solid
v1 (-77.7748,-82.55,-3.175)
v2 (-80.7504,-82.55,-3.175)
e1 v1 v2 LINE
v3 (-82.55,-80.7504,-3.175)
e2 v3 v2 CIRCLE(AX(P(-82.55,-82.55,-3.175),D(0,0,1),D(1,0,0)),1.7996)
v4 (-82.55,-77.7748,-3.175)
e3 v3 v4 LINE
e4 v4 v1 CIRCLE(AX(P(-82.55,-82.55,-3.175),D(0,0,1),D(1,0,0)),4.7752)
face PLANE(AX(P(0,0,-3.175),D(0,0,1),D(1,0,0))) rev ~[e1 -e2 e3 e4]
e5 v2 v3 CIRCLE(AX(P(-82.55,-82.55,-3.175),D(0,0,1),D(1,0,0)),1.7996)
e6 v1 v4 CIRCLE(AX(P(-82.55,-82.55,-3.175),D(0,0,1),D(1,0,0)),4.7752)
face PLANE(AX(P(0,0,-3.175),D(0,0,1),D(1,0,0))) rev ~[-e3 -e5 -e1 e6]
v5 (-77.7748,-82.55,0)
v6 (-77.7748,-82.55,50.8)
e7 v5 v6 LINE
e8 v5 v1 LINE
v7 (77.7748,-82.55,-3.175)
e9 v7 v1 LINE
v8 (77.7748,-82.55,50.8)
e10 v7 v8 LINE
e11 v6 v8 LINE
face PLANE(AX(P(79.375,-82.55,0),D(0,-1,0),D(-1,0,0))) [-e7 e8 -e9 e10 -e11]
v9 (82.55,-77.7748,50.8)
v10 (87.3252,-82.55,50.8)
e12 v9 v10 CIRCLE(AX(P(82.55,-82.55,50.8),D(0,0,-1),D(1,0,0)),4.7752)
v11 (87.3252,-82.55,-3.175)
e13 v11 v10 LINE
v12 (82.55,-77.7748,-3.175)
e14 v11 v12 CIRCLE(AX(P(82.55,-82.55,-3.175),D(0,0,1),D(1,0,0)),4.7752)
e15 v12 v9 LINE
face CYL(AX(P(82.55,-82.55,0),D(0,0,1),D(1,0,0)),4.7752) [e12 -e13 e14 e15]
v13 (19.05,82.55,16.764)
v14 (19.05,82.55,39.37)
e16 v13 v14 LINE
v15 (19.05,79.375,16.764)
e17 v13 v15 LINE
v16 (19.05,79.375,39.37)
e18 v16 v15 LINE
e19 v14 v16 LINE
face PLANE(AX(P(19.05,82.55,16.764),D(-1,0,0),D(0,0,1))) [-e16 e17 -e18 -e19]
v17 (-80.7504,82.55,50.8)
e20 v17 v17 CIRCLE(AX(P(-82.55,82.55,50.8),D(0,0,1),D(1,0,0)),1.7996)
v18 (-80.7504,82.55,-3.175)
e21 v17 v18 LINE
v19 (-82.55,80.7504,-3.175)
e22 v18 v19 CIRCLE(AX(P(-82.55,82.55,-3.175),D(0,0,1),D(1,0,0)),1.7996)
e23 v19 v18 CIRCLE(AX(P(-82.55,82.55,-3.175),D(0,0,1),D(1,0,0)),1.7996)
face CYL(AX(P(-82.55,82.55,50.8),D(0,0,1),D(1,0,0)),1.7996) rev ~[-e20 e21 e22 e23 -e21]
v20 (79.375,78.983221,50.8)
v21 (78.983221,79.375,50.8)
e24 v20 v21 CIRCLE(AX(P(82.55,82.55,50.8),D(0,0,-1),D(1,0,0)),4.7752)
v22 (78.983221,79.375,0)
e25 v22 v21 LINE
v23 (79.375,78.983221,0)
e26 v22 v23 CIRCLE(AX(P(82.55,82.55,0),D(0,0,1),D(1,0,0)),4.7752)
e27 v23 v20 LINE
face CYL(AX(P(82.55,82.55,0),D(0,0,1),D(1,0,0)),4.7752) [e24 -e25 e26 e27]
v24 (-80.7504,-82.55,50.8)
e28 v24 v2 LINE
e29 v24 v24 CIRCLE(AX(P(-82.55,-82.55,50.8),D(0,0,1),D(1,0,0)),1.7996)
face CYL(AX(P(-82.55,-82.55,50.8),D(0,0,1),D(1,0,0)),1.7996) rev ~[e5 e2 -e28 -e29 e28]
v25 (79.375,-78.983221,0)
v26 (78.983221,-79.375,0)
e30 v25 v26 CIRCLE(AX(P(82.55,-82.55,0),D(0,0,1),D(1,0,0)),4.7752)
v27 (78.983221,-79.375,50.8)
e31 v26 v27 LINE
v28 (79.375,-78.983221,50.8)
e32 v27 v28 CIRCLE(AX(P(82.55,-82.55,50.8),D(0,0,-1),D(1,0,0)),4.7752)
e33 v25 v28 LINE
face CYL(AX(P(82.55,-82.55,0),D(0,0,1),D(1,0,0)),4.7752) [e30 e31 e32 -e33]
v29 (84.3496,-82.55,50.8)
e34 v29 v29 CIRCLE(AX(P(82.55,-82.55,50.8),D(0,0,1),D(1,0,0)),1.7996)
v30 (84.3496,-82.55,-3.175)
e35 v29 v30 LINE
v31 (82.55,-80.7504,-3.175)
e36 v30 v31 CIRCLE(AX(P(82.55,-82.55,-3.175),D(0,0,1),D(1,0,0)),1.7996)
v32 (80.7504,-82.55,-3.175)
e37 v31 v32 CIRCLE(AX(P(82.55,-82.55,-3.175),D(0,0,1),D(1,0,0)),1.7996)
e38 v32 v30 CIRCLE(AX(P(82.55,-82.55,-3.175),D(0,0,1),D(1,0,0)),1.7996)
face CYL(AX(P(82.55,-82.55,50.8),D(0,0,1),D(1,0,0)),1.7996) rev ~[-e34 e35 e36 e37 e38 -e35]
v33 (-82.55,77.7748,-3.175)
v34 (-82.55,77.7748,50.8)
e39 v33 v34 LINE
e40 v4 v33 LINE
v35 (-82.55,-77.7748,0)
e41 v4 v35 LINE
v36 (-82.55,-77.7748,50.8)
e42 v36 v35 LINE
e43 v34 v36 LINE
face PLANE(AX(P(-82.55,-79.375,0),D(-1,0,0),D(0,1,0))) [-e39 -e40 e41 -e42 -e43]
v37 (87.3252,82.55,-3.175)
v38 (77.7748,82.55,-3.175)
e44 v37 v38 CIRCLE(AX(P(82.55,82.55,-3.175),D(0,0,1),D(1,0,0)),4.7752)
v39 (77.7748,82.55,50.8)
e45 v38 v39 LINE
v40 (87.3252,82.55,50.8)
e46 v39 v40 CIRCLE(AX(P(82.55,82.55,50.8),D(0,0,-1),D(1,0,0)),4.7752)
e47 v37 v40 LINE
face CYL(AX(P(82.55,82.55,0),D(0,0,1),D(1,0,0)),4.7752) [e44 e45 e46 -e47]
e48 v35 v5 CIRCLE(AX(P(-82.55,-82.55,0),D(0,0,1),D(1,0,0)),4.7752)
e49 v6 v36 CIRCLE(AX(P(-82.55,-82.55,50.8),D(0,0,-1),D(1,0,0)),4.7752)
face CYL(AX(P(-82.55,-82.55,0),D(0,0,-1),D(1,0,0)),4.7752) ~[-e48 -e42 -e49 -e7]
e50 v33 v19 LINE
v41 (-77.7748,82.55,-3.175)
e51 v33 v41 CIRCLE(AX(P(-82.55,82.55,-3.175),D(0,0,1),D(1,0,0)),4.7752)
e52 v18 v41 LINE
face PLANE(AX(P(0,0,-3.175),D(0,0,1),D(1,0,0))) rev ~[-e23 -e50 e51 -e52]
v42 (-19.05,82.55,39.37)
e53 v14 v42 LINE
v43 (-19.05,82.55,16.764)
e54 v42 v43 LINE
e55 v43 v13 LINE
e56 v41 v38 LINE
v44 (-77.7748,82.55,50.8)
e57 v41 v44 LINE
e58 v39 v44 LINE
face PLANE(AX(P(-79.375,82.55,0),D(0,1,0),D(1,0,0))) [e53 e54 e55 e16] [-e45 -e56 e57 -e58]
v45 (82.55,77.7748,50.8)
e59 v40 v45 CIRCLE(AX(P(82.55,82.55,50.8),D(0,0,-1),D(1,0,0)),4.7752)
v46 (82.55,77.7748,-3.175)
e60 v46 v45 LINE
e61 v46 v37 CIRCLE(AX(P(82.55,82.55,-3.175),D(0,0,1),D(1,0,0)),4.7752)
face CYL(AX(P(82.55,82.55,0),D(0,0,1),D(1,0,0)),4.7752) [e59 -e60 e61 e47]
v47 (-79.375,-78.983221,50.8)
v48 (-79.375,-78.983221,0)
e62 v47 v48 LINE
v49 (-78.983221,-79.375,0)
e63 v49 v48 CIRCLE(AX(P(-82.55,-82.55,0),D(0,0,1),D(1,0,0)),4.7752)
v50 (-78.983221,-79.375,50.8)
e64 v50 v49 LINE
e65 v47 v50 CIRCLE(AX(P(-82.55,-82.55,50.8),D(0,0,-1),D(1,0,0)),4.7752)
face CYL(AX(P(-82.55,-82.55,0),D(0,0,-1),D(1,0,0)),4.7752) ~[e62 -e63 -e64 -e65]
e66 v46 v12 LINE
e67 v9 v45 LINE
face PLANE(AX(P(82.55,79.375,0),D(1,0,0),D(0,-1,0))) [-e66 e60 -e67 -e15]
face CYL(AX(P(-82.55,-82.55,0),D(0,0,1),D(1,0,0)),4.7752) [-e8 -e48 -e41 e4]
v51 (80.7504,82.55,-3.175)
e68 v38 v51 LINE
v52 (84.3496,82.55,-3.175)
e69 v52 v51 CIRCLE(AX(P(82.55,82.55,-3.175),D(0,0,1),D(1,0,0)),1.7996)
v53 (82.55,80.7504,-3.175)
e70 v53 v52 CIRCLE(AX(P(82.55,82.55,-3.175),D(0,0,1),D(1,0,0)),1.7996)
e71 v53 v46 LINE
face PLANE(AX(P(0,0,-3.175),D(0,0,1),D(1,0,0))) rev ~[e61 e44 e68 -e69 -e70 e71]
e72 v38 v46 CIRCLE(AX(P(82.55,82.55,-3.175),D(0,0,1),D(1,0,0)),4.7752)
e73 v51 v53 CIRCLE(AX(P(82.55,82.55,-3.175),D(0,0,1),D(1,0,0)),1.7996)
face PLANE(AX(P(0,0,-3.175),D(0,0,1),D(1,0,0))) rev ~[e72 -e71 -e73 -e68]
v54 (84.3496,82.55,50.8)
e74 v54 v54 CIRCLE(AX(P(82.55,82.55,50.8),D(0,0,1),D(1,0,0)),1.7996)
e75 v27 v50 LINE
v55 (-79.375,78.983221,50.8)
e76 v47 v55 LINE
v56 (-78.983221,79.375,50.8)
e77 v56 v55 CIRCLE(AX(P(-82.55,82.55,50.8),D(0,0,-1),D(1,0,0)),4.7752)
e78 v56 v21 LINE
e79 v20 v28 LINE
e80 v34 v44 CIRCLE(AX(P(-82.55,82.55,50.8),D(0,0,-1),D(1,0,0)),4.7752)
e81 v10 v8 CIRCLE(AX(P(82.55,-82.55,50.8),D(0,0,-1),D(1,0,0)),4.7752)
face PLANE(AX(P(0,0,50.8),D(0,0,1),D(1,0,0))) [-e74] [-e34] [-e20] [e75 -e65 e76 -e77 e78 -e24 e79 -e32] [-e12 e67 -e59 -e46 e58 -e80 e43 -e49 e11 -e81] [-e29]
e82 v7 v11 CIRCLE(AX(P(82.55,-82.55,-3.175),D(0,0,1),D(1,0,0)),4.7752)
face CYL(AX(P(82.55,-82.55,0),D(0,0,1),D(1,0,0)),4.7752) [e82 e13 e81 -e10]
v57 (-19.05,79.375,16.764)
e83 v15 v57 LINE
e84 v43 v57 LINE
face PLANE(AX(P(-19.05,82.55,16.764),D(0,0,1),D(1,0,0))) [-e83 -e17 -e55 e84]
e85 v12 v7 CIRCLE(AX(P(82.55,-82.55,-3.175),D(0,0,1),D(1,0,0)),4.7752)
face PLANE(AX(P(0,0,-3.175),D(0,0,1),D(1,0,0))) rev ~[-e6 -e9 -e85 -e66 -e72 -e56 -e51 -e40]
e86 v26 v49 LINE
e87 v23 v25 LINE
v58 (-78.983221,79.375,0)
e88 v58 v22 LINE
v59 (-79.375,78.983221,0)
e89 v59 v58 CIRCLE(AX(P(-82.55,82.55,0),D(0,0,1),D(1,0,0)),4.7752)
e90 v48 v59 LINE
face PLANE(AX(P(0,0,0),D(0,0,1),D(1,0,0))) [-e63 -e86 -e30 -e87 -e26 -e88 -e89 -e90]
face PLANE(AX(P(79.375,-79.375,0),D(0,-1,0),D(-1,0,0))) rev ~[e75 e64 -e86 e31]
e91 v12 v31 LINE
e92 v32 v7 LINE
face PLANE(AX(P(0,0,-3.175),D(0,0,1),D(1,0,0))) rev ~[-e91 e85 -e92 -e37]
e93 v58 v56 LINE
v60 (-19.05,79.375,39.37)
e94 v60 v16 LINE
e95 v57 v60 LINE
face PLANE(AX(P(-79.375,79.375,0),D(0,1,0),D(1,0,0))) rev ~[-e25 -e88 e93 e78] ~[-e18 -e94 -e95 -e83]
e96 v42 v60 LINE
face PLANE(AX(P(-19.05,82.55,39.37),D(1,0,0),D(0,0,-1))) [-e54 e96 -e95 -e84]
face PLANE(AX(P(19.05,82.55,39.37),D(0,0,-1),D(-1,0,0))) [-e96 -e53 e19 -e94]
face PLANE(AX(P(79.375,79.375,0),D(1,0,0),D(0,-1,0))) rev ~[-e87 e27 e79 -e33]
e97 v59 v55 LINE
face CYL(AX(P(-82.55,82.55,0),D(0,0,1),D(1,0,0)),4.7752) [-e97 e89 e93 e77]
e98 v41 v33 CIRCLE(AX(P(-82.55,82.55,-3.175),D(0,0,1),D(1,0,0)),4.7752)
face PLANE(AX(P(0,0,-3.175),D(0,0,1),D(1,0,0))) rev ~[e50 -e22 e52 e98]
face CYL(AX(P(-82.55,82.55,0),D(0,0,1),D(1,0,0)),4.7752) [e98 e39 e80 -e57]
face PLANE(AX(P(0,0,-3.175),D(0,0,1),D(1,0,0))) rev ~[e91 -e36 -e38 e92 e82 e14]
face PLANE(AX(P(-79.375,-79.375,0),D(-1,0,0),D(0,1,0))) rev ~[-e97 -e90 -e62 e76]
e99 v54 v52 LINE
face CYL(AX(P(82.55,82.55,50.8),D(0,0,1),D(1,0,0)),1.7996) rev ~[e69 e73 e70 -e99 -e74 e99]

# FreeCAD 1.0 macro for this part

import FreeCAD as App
import Part
import Sketcher

V = App.Vector
Q = App.Units.Quantity


def faces_at(feature, points):
    """Names of the faces that lie closest to the given points."""
    faces = feature.Shape.Faces
    near = lambda p: min(range(len(faces)), key=lambda i: faces[i].distToShape(Part.Vertex(*p))[0])
    return sorted({f"Face{near(p) + 1}" for p in points})


def add_polygon(sketch, points):
    """Adds a closed chain of lines whose ends are joined by coincident constraints."""
    first, n = sketch.GeometryCount, len(points)
    for a, b in zip(points, points[1:] + points[:1]):
        sketch.addGeometry(Part.LineSegment(App.Vector(*a, 0), App.Vector(*b, 0)), False)
    for i in range(n):
        sketch.addConstraint(Sketcher.Constraint("Coincident", first + i, 2, first + (i + 1) % n, 1))

doc = App.newDocument("Part")
params = doc.addObject("Spreadsheet::Sheet", "Params")
for row, (alias, value) in enumerate([
    ("sketch1_width", "6.25 in"),
    ("pad1_length", "2 in"),
    ("thickness_wall", "0.125 in"),
    ("sketch2_diameter", "0.376 in"),
    ("pad2_length", "2 in"),
    ("pad2_length2", "0.125 in"),
    ("pocket1_length", "4.25 in"),
    ("sketch4_width", "1.5 in"),
    ("sketch4_height", "0.89 in"),
], start=1):
    params.set(f"A{row}", alias)
    params.set(f"B{row}", "=" + value)
    params.setAlias(f"B{row}", alias)

body = doc.addObject("PartDesign::Body", "Body")

sketch1 = body.newObject("Sketcher::SketchObject", "Sketch")
sketch1.AttachmentSupport = (doc.getObject("XY_Plane"), [""])
sketch1.MapMode = "FlatFace"
add_polygon(sketch1, [(79, 79), (-79, 79), (-79, -79), (79, -79)])
sketch1.addConstraint([
    Sketcher.Constraint("Horizontal", 0),
    Sketcher.Constraint("Vertical", 1),
    Sketcher.Constraint("Horizontal", 2),
    Sketcher.Constraint("Vertical", 3),
    Sketcher.Constraint("Symmetric", 0, 2, 2, 2, -1, 1),
    Sketcher.Constraint("Equal", 2, 1),
    Sketcher.Constraint("DistanceX", 0, 2, 0, 1, Q("6.25 in")),
])
sketch1.setExpression("Constraints[10]", "Params.sketch1_width")
pad1 = body.newObject("PartDesign::Pad", "Pad")
pad1.Profile = sketch1
pad1.setExpression("Length", "Params.pad1_length")
doc.recompute()

thickness = body.newObject("PartDesign::Thickness", "Thickness")
thickness.Base = (pad1, faces_at(pad1, [(-26.458, 26.458, 50.8)]))
thickness.setExpression("Value", "Params.thickness_wall")
thickness.Reversed = False
thickness.Join = "Intersection"

sketch2 = body.newObject("Sketcher::SketchObject", "Sketch001")
sketch2.AttachmentSupport = (doc.getObject("XY_Plane"), [""])
sketch2.MapMode = "FlatFace"
sketch2.addGeometry([
    Part.Circle(V(82.5, 82.5, 0), V(0, 0, 1), 4.8),
    Part.Circle(V(82.5, -82.5, 0), V(0, 0, 1), 4.8),
    Part.Circle(V(-82.5, -82.5, 0), V(0, 0, 1), 4.8),
    Part.Circle(V(-82.5, 82.5, 0), V(0, 0, 1), 4.8),
], False)
sketch2.addConstraint([
    Sketcher.Constraint("Equal", 0, 1),
    Sketcher.Constraint("Equal", 1, 2),
    Sketcher.Constraint("Equal", 2, 3),
    Sketcher.Constraint("Symmetric", 0, 3, 2, 3, -1, 1),
    Sketcher.Constraint("Symmetric", 1, 3, 3, 3, -1, 1),
    Sketcher.Constraint("Symmetric", 1, 3, 2, 3, -2),
    Sketcher.Constraint("Diameter", 0, Q("0.376 in")),
    Sketcher.Constraint("DistanceY", 1, 3, 0, 3, Q("6.5 in")),
    Sketcher.Constraint("DistanceX", 2, 3, 1, 3, Q("6.5 in")),
])
sketch2.setExpression("Constraints[6]", "Params.sketch2_diameter")
pad2 = body.newObject("PartDesign::Pad", "Pad001")
pad2.Profile = sketch2
pad2.Type = "TwoLengths"
pad2.setExpression("Length", "Params.pad2_length")
pad2.setExpression("Length2", "Params.pad2_length2")

sketch3 = body.newObject("Sketcher::SketchObject", "Sketch002")
sketch3.AttachmentSupport = (doc.getObject("XY_Plane"), [""])
sketch3.MapMode = "FlatFace"
sketch3.AttachmentOffset = App.Placement(V(0, 0, 2 * 25.4), App.Rotation())
sketch3.addGeometry([
    Part.Circle(V(-82.5, -82.5, 0), V(0, 0, 1), 1.8),
    Part.Circle(V(82.5, 82.5, 0), V(0, 0, 1), 1.8),
    Part.Circle(V(82.5, -82.5, 0), V(0, 0, 1), 1.8),
    Part.Circle(V(-82.5, 82.5, 0), V(0, 0, 1), 1.8),
], False)
sketch3.addConstraint([
    Sketcher.Constraint("Equal", 0, 1),
    Sketcher.Constraint("Equal", 1, 2),
    Sketcher.Constraint("Equal", 2, 3),
    Sketcher.Constraint("Symmetric", 0, 3, 1, 3, -1, 1),
    Sketcher.Constraint("Symmetric", 2, 3, 3, 3, -1, 1),
    Sketcher.Constraint("Symmetric", 0, 3, 2, 3, -2),
    Sketcher.Constraint("Diameter", 0, Q("0.1417 in")),
    Sketcher.Constraint("DistanceX", 0, 3, 1, 3, Q("6.5 in")),
    Sketcher.Constraint("DistanceY", 0, 3, 1, 3, Q("6.5 in")),
])
pocket1 = body.newObject("PartDesign::Pocket", "Pocket")
pocket1.Profile = sketch3
pocket1.setExpression("Length", "Params.pocket1_length")
pocket1.Midplane = True

sketch4 = body.newObject("Sketcher::SketchObject", "Sketch003")
sketch4.AttachmentSupport = (doc.getObject("XZ_Plane"), [""])
sketch4.MapMode = "FlatFace"
sketch4.AttachmentOffset = App.Placement(V(0, 0, -3.25 * 25.4), App.Rotation())
add_polygon(sketch4, [(19, 17), (-19, 17), (-19, 39), (19, 39)])
sketch4.addConstraint([
    Sketcher.Constraint("Horizontal", 0),
    Sketcher.Constraint("Vertical", 1),
    Sketcher.Constraint("Horizontal", 2),
    Sketcher.Constraint("Vertical", 3),
    Sketcher.Constraint("DistanceX", 0, 2, 0, 1, Q("1.5 in")),
    Sketcher.Constraint("DistanceY", 1, 1, 1, 2, Q("0.89 in")),
    Sketcher.Constraint("DistanceX", 0, 2, -1, 1, Q("0.75 in")),
    Sketcher.Constraint("DistanceY", -1, 1, 0, 2, Q("0.66 in")),
])
sketch4.setExpression("Constraints[8]", "Params.sketch4_width")
sketch4.setExpression("Constraints[9]", "Params.sketch4_height")
pocket2 = body.newObject("PartDesign::Pocket", "Pocket001")
pocket2.Profile = sketch4
pocket2.Type = "UpToFirst"
pocket2.Reversed = True

doc.recompute()
